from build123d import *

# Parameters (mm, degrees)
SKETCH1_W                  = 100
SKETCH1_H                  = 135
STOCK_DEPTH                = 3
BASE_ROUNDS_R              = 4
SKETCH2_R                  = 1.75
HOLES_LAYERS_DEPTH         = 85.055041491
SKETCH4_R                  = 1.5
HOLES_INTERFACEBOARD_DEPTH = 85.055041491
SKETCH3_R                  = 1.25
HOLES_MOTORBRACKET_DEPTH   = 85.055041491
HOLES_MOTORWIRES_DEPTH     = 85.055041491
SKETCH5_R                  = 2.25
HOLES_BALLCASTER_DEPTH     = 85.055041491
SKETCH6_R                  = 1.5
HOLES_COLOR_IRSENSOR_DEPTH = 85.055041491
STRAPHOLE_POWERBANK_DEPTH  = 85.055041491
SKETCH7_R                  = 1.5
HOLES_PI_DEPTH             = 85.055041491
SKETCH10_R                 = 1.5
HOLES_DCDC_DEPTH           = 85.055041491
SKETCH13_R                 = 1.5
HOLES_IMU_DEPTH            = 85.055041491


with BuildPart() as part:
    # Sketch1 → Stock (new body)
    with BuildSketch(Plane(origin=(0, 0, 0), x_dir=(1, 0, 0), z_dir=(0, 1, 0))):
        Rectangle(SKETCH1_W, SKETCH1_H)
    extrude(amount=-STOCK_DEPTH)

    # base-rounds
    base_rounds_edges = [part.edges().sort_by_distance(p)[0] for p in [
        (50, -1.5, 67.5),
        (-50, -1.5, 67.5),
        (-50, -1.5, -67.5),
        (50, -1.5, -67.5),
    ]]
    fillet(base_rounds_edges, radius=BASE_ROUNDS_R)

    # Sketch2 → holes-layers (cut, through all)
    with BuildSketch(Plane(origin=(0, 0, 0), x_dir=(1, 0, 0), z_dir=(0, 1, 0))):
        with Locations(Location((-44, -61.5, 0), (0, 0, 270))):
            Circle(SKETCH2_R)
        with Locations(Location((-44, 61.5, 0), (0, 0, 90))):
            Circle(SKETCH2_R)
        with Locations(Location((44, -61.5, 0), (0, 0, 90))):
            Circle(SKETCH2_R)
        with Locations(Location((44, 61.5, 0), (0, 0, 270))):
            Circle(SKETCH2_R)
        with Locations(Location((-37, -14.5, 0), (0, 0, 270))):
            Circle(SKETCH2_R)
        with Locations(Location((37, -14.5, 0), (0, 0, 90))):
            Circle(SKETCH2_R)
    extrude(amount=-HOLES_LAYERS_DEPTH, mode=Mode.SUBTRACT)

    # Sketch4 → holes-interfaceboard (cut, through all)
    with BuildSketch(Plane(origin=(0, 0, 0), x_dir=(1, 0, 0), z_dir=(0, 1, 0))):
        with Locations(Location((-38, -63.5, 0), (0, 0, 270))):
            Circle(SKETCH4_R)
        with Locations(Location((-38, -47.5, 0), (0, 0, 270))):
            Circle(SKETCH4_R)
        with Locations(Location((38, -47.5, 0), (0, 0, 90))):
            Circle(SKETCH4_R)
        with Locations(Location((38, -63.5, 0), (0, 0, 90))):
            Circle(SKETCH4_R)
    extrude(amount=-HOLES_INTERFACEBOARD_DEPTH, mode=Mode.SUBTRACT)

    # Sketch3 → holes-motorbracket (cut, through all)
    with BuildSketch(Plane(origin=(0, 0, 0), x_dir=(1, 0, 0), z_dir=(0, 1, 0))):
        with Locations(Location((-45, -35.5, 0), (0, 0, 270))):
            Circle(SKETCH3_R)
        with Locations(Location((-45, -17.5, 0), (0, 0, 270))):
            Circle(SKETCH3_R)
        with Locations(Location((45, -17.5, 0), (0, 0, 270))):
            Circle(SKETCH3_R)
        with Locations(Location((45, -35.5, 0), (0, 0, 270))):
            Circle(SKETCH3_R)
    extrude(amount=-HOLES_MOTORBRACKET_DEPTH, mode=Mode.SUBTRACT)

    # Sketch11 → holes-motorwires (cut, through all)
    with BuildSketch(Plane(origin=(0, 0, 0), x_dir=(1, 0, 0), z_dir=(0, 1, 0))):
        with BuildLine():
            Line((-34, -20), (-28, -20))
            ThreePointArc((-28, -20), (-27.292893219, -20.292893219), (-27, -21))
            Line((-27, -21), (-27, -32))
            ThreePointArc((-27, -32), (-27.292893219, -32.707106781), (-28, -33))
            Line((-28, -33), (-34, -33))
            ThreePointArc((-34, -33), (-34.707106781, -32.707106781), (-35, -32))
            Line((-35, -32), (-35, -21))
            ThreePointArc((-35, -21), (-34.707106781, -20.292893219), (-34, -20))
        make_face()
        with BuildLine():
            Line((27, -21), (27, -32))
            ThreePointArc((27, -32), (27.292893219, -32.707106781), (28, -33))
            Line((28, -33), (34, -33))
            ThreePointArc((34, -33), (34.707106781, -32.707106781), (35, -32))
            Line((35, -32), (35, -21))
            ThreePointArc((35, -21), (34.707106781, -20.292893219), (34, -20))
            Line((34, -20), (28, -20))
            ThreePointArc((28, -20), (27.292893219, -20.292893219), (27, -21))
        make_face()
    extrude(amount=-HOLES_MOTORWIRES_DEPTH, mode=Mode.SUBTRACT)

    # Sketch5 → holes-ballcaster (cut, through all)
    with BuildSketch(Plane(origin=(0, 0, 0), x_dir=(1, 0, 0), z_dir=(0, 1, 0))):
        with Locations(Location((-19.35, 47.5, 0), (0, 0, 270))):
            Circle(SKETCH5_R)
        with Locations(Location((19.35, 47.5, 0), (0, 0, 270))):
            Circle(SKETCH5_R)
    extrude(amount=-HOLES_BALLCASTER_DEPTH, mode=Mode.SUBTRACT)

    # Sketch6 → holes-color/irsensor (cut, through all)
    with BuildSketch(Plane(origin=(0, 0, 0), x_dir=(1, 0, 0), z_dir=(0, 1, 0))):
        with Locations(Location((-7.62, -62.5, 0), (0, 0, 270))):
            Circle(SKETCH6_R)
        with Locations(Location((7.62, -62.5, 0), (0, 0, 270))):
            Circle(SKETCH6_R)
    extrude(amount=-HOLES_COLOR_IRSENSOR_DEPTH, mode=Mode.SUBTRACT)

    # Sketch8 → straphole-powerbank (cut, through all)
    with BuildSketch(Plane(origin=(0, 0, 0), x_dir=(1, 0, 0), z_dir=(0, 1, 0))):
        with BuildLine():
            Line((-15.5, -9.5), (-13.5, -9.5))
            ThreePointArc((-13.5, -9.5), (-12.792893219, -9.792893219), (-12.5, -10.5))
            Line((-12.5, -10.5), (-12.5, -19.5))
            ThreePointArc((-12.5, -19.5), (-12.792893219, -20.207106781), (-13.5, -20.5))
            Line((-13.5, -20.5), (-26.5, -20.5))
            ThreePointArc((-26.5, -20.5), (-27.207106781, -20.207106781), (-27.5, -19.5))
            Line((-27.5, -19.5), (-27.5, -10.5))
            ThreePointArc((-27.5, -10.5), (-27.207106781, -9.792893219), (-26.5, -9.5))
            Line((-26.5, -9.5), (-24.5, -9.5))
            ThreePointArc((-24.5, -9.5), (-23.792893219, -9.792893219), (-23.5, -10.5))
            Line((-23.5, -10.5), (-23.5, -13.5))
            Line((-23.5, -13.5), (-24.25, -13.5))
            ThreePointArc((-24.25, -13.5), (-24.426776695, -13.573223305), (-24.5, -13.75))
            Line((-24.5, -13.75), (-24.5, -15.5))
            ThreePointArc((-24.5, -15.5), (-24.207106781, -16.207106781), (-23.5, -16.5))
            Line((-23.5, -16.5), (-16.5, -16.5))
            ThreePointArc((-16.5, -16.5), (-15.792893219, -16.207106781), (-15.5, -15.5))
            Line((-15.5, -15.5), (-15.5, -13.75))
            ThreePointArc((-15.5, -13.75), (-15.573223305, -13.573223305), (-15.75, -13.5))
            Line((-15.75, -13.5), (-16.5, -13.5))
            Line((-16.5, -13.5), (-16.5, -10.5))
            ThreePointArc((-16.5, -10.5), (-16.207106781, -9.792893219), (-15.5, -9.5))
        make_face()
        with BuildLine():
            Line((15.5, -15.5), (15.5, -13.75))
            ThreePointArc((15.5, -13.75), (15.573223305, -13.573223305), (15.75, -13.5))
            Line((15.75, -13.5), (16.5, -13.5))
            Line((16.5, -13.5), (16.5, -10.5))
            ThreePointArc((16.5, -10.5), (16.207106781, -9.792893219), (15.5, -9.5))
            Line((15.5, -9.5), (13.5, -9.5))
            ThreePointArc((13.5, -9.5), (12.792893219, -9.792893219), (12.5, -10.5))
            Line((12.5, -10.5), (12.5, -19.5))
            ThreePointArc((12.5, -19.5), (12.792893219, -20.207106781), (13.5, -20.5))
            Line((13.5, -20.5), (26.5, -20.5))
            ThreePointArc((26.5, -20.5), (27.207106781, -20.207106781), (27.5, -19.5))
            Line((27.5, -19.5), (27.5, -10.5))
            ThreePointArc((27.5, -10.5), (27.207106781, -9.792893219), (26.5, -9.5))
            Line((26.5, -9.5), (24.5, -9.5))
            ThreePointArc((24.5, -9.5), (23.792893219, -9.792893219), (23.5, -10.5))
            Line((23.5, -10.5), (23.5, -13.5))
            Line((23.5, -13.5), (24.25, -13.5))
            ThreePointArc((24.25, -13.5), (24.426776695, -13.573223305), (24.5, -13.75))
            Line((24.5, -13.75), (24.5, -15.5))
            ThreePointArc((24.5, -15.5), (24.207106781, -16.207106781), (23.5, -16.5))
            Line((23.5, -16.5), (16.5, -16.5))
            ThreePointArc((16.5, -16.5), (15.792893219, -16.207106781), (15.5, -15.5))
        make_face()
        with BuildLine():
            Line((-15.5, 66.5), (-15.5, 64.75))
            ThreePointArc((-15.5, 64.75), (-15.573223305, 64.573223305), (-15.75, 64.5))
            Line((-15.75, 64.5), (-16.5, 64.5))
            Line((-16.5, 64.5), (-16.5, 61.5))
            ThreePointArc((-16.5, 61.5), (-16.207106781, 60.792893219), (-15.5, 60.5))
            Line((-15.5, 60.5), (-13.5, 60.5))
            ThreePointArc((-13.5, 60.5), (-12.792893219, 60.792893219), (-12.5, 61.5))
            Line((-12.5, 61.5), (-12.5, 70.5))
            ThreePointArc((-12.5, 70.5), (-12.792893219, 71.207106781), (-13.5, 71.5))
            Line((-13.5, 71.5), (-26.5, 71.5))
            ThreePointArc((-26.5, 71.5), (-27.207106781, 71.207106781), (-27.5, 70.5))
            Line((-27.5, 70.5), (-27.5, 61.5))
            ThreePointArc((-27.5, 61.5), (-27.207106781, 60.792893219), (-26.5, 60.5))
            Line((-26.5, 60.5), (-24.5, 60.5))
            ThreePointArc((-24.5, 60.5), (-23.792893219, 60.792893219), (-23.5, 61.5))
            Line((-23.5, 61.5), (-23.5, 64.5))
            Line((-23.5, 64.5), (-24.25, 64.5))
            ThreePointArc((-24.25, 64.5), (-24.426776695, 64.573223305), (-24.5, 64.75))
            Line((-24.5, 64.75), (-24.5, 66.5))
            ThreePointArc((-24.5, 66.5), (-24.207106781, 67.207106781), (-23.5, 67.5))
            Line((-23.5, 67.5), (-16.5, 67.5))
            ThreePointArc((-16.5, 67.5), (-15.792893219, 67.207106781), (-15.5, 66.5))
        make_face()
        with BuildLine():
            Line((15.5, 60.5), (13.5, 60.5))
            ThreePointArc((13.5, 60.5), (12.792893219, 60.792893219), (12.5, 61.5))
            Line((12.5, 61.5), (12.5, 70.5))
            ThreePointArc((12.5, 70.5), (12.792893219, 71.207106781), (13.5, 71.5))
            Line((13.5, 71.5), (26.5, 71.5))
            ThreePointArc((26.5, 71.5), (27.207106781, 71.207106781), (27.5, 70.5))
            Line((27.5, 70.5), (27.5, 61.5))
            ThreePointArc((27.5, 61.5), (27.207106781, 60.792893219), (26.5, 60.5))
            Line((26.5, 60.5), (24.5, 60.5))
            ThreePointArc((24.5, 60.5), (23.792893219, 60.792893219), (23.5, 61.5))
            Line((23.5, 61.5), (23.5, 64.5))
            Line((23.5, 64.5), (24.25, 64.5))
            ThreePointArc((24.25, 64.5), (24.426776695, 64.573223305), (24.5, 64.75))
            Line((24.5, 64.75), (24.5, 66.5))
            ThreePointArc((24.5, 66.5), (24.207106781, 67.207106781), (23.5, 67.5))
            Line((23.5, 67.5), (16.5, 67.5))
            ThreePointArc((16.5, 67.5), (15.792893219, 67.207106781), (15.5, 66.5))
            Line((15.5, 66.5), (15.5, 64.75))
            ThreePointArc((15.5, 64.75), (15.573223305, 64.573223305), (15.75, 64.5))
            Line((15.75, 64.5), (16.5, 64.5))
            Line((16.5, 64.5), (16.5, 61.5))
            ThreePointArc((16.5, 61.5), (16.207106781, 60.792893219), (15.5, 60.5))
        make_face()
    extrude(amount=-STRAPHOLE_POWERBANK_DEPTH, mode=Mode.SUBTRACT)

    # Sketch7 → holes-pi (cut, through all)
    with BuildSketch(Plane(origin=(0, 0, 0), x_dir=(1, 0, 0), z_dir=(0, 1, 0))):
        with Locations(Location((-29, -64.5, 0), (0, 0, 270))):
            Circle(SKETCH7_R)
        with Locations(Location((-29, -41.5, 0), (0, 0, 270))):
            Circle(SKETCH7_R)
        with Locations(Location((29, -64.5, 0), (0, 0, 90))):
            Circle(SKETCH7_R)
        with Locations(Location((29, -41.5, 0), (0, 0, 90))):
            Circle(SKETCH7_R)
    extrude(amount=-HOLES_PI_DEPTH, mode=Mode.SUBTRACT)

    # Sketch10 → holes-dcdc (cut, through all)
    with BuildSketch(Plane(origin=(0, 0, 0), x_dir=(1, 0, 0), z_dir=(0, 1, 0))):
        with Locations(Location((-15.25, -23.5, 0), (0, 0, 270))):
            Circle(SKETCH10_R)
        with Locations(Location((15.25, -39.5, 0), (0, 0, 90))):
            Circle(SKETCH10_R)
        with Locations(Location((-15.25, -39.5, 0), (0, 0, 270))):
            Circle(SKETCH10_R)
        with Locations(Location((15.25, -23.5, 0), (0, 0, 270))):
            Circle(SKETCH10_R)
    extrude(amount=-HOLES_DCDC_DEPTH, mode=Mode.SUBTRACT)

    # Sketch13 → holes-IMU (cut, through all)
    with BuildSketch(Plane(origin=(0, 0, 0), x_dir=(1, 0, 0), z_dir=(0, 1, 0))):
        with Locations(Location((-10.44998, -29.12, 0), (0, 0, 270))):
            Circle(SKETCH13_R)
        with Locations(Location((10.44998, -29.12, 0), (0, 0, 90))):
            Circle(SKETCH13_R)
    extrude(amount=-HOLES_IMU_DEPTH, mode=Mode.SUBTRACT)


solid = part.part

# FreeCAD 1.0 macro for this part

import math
import FreeCAD as App
import Part
import Sketcher

V = App.Vector


def edges_at(feature, points):
    """Names of the edges that pass closest to the given points."""
    edges = feature.Shape.Edges
    near = lambda p: min(range(len(edges)), key=lambda i: edges[i].distToShape(Part.Vertex(*p))[0])
    return sorted({f"Edge{near(p) + 1}" for p in points})

doc = App.newDocument("Part")
body = doc.addObject("PartDesign::Body", "Body")

# Sketch on XZ plane
sketch1 = body.newObject("Sketcher::SketchObject", "Sketch")
sketch1.AttachmentSupport = (doc.getObject("XZ_Plane"), [""])
sketch1.MapMode = "FlatFace"
sketch1.addGeometry(Part.LineSegment(V(-50, -68, 0), V(-50, 68, 0)), False)
sketch1.addGeometry(Part.LineSegment(V(-50, 68, 0), V(50, 68, 0)), False)
sketch1.addGeometry(Part.LineSegment(V(50, 68, 0), V(50, -68, 0)), False)
sketch1.addGeometry(Part.LineSegment(V(50, -68, 0), V(-50, -68, 0)), False)
sketch1.addConstraint(Sketcher.Constraint("Coincident", 0, 2, 1, 1))
sketch1.addConstraint(Sketcher.Constraint("Coincident", 1, 2, 2, 1))
sketch1.addConstraint(Sketcher.Constraint("Coincident", 2, 2, 3, 1))
sketch1.addConstraint(Sketcher.Constraint("Coincident", 3, 2, 0, 1))
sketch1.addConstraint(Sketcher.Constraint("Vertical", 0))
sketch1.addConstraint(Sketcher.Constraint("Horizontal", 1))
sketch1.addConstraint(Sketcher.Constraint("Vertical", 2))
sketch1.addConstraint(Sketcher.Constraint("Horizontal", 3))
sketch1.addConstraint(Sketcher.Constraint("Symmetric", 0, 2, 2, 2, -1, 1))
sketch1.addConstraint(Sketcher.Constraint("DistanceX", 1, 1, 1, 2, 100.0))
sketch1.addConstraint(Sketcher.Constraint("DistanceY", 0, 1, 0, 2, 135.0))
pad1 = body.newObject("PartDesign::Pad", "Pad")
pad1.Profile = sketch1
pad1.Length = 3
doc.recompute()

fillet = body.newObject("PartDesign::Fillet", "Fillet")
fillet.Base = (pad1, edges_at(pad1, [
    (50, -1.5, 67.5),
    (-50, -1.5, 67.5),
    (-50, -1.5, -67.5),
    (50, -1.5, -67.5),
]))
fillet.Radius = 4

# Sketch on XZ plane
sketch2 = body.newObject("Sketcher::SketchObject", "Sketch001")
sketch2.AttachmentSupport = (doc.getObject("XZ_Plane"), [""])
sketch2.MapMode = "FlatFace"
sketch2.addGeometry(Part.Circle(V(-44, 61.5, 0), V(0, 0, 1), 1.8), False)
sketch2.addGeometry(Part.Circle(V(-44, -61.5, 0), V(0, 0, 1), 1.8), False)
sketch2.addGeometry(Part.Circle(V(44, 61.5, 0), V(0, 0, 1), 1.8), False)
sketch2.addGeometry(Part.Circle(V(44, -61.5, 0), V(0, 0, 1), 1.8), False)
sketch2.addGeometry(Part.Circle(V(-37, 14.5, 0), V(0, 0, 1), 1.8), False)
sketch2.addGeometry(Part.Circle(V(37, 14.5, 0), V(0, 0, 1), 1.8), False)
sketch2.addConstraint(Sketcher.Constraint("Equal", 0, 1))
sketch2.addConstraint(Sketcher.Constraint("Equal", 1, 2))
sketch2.addConstraint(Sketcher.Constraint("Equal", 2, 3))
sketch2.addConstraint(Sketcher.Constraint("Equal", 3, 4))
sketch2.addConstraint(Sketcher.Constraint("Equal", 4, 5))
sketch2.addConstraint(Sketcher.Constraint("Symmetric", 1, 3, 2, 3, -1, 1))
sketch2.addConstraint(Sketcher.Constraint("Symmetric", 0, 3, 3, 3, -1, 1))
sketch2.addConstraint(Sketcher.Constraint("Symmetric", 0, 3, 2, 3, -2))
sketch2.addConstraint(Sketcher.Constraint("Symmetric", 4, 3, 5, 3, -2))
sketch2.addConstraint(Sketcher.Constraint("Diameter", 0, 3.5))
sketch2.addConstraint(Sketcher.Constraint("DistanceX", 0, 3, -1, 1, 44.0))
sketch2.addConstraint(Sketcher.Constraint("DistanceX", 4, 3, -1, 1, 37.0))
sketch2.addConstraint(Sketcher.Constraint("DistanceY", 1, 3, 0, 3, 123.0))
sketch2.addConstraint(Sketcher.Constraint("DistanceY", 4, 3, 0, 3, 47.0))
pocket1 = body.newObject("PartDesign::Pocket", "Pocket")
pocket1.Profile = sketch2
pocket1.Type = "ThroughAll"
pocket1.Reversed = True

# Sketch on XZ plane
sketch3 = body.newObject("Sketcher::SketchObject", "Sketch002")
sketch3.AttachmentSupport = (doc.getObject("XZ_Plane"), [""])
sketch3.MapMode = "FlatFace"
sketch3.addGeometry(Part.Circle(V(-38, 63.5, 0), V(0, 0, 1), 1.5), False)
sketch3.addGeometry(Part.Circle(V(-38, 47.5, 0), V(0, 0, 1), 1.5), False)
sketch3.addGeometry(Part.Circle(V(38, 47.5, 0), V(0, 0, 1), 1.5), False)
sketch3.addGeometry(Part.Circle(V(38, 63.5, 0), V(0, 0, 1), 1.5), False)
sketch3.addConstraint(Sketcher.Constraint("Equal", 0, 1))
sketch3.addConstraint(Sketcher.Constraint("Equal", 1, 2))
sketch3.addConstraint(Sketcher.Constraint("Equal", 2, 3))
sketch3.addConstraint(Sketcher.Constraint("Symmetric", 1, 3, 2, 3, -2))
sketch3.addConstraint(Sketcher.Constraint("Symmetric", 0, 3, 3, 3, -2))
sketch3.addConstraint(Sketcher.Constraint("Vertical", 0, 3, 1, 3))
sketch3.addConstraint(Sketcher.Constraint("Diameter", 0, 3.0))
sketch3.addConstraint(Sketcher.Constraint("DistanceX", 0, 3, -1, 1, 38.0))
sketch3.addConstraint(Sketcher.Constraint("DistanceY", 1, 3, 0, 3, 16.0))
sketch3.addConstraint(Sketcher.Constraint("DistanceY", -1, 1, 0, 3, 63.5))
pocket2 = body.newObject("PartDesign::Pocket", "Pocket001")
pocket2.Profile = sketch3
pocket2.Type = "ThroughAll"
pocket2.Reversed = True

# Sketch on XZ plane
sketch4 = body.newObject("Sketcher::SketchObject", "Sketch003")
sketch4.AttachmentSupport = (doc.getObject("XZ_Plane"), [""])
sketch4.MapMode = "FlatFace"
sketch4.addGeometry(Part.Circle(V(-45, 35.5, 0), V(0, 0, 1), 1.2), False)
sketch4.addGeometry(Part.Circle(V(-45, 17.5, 0), V(0, 0, 1), 1.2), False)
sketch4.addGeometry(Part.Circle(V(45, 17.5, 0), V(0, 0, 1), 1.2), False)
sketch4.addGeometry(Part.Circle(V(45, 35.5, 0), V(0, 0, 1), 1.2), False)
sketch4.addConstraint(Sketcher.Constraint("Equal", 0, 1))
sketch4.addConstraint(Sketcher.Constraint("Equal", 1, 2))
sketch4.addConstraint(Sketcher.Constraint("Equal", 2, 3))
sketch4.addConstraint(Sketcher.Constraint("Symmetric", 1, 3, 2, 3, -2))
sketch4.addConstraint(Sketcher.Constraint("Symmetric", 0, 3, 3, 3, -2))
sketch4.addConstraint(Sketcher.Constraint("Vertical", 0, 3, 1, 3))
sketch4.addConstraint(Sketcher.Constraint("Diameter", 0, 2.5))
sketch4.addConstraint(Sketcher.Constraint("DistanceX", 0, 3, -1, 1, 45.0))
sketch4.addConstraint(Sketcher.Constraint("DistanceY", 1, 3, 0, 3, 18.0))
sketch4.addConstraint(Sketcher.Constraint("DistanceY", -1, 1, 0, 3, 35.5))
pocket3 = body.newObject("PartDesign::Pocket", "Pocket002")
pocket3.Profile = sketch4
pocket3.Type = "ThroughAll"
pocket3.Reversed = True

# Sketch on XZ plane
sketch5 = body.newObject("Sketcher::SketchObject", "Sketch004")
sketch5.AttachmentSupport = (doc.getObject("XZ_Plane"), [""])
sketch5.MapMode = "FlatFace"
sketch5.addGeometry(Part.LineSegment(V(-28, 20, 0), V(-34, 20, 0)), False)
sketch5.addGeometry(Part.ArcOfCircle(Part.Circle(V(-34, 21, 0), V(0, 0, 1), 1), math.radians(-180), math.radians(-90)), False)
sketch5.addGeometry(Part.LineSegment(V(-35, 21, 0), V(-35, 32, 0)), False)
sketch5.addGeometry(Part.ArcOfCircle(Part.Circle(V(-34, 32, 0), V(0, 0, 1), 1), math.radians(90), math.radians(180)), False)
sketch5.addGeometry(Part.LineSegment(V(-34, 33, 0), V(-28, 33, 0)), False)
sketch5.addGeometry(Part.ArcOfCircle(Part.Circle(V(-28, 32, 0), V(0, 0, 1), 1), math.radians(0), math.radians(90)), False)
sketch5.addGeometry(Part.LineSegment(V(-27, 32, 0), V(-27, 21, 0)), False)
sketch5.addGeometry(Part.ArcOfCircle(Part.Circle(V(-28, 21, 0), V(0, 0, 1), 1), math.radians(-90), math.radians(0)), False)
sketch5.addGeometry(Part.LineSegment(V(27, 21, 0), V(27, 32, 0)), False)
sketch5.addGeometry(Part.ArcOfCircle(Part.Circle(V(28, 32, 0), V(0, 0, 1), 1), math.radians(90), math.radians(180)), False)
sketch5.addGeometry(Part.LineSegment(V(28, 33, 0), V(34, 33, 0)), False)
sketch5.addGeometry(Part.ArcOfCircle(Part.Circle(V(34, 32, 0), V(0, 0, 1), 1), math.radians(0), math.radians(90)), False)
sketch5.addGeometry(Part.LineSegment(V(35, 32, 0), V(35, 21, 0)), False)
sketch5.addGeometry(Part.ArcOfCircle(Part.Circle(V(34, 21, 0), V(0, 0, 1), 1), math.radians(-90), math.radians(0)), False)
sketch5.addGeometry(Part.LineSegment(V(34, 20, 0), V(28, 20, 0)), False)
sketch5.addGeometry(Part.ArcOfCircle(Part.Circle(V(28, 21, 0), V(0, 0, 1), 1), math.radians(-180), math.radians(-90)), False)
sketch5.addConstraint(Sketcher.Constraint("Tangent", 0, 2, 1, 2))
sketch5.addConstraint(Sketcher.Constraint("Tangent", 1, 1, 2, 1))
sketch5.addConstraint(Sketcher.Constraint("Tangent", 2, 2, 3, 2))
sketch5.addConstraint(Sketcher.Constraint("Tangent", 3, 1, 4, 1))
sketch5.addConstraint(Sketcher.Constraint("Tangent", 4, 2, 5, 2))
sketch5.addConstraint(Sketcher.Constraint("Tangent", 5, 1, 6, 1))
sketch5.addConstraint(Sketcher.Constraint("Tangent", 6, 2, 7, 2))
sketch5.addConstraint(Sketcher.Constraint("Tangent", 7, 1, 0, 1))
sketch5.addConstraint(Sketcher.Constraint("Tangent", 8, 2, 9, 2))
sketch5.addConstraint(Sketcher.Constraint("Tangent", 9, 1, 10, 1))
sketch5.addConstraint(Sketcher.Constraint("Tangent", 10, 2, 11, 2))
sketch5.addConstraint(Sketcher.Constraint("Tangent", 11, 1, 12, 1))
sketch5.addConstraint(Sketcher.Constraint("Tangent", 12, 2, 13, 2))
sketch5.addConstraint(Sketcher.Constraint("Tangent", 13, 1, 14, 1))
sketch5.addConstraint(Sketcher.Constraint("Tangent", 14, 2, 15, 2))
sketch5.addConstraint(Sketcher.Constraint("Tangent", 15, 1, 8, 1))
sketch5.addConstraint(Sketcher.Constraint("Horizontal", 0))
sketch5.addConstraint(Sketcher.Constraint("Vertical", 2))
sketch5.addConstraint(Sketcher.Constraint("Horizontal", 4))
sketch5.addConstraint(Sketcher.Constraint("Vertical", 6))
sketch5.addConstraint(Sketcher.Constraint("Vertical", 8))
sketch5.addConstraint(Sketcher.Constraint("Horizontal", 10))
sketch5.addConstraint(Sketcher.Constraint("Vertical", 12))
sketch5.addConstraint(Sketcher.Constraint("Horizontal", 14))
sketch5.addConstraint(Sketcher.Constraint("Equal", 1, 3))
sketch5.addConstraint(Sketcher.Constraint("Equal", 3, 5))
sketch5.addConstraint(Sketcher.Constraint("Equal", 5, 7))
sketch5.addConstraint(Sketcher.Constraint("Equal", 7, 9))
sketch5.addConstraint(Sketcher.Constraint("Equal", 9, 11))
sketch5.addConstraint(Sketcher.Constraint("Equal", 11, 13))
sketch5.addConstraint(Sketcher.Constraint("Equal", 13, 15))
sketch5.addConstraint(Sketcher.Constraint("Symmetric", 5, 3, 9, 3, -2))
sketch5.addConstraint(Sketcher.Constraint("Symmetric", 1, 3, 13, 3, -2))
sketch5.addConstraint(Sketcher.Constraint("Radius", 1, 1.0))
sketch5.addConstraint(Sketcher.Constraint("DistanceX", 0, 2, 0, 1, 6.0))
sketch5.addConstraint(Sketcher.Constraint("DistanceY", 2, 1, 2, 2, 11.0))
sketch5.addConstraint(Sketcher.Constraint("DistanceX", 1, 3, -1, 1, 34.0))
sketch5.addConstraint(Sketcher.Constraint("DistanceY", -1, 1, 1, 3, 21.0))
pocket4 = body.newObject("PartDesign::Pocket", "Pocket003")
pocket4.Profile = sketch5
pocket4.Type = "ThroughAll"
pocket4.Reversed = True

# Sketch on XZ plane
sketch6 = body.newObject("Sketcher::SketchObject", "Sketch005")
sketch6.AttachmentSupport = (doc.getObject("XZ_Plane"), [""])
sketch6.MapMode = "FlatFace"
sketch6.addGeometry(Part.Circle(V(-19.4, -47.5, 0), V(0, 0, 1), 2.2), False)
sketch6.addGeometry(Part.Circle(V(19.4, -47.5, 0), V(0, 0, 1), 2.2), False)
sketch6.addConstraint(Sketcher.Constraint("Equal", 0, 1))
sketch6.addConstraint(Sketcher.Constraint("Symmetric", 0, 3, 1, 3, -2))
sketch6.addConstraint(Sketcher.Constraint("Diameter", 0, 4.5))
sketch6.addConstraint(Sketcher.Constraint("DistanceY", 0, 3, -1, 1, 47.5))
sketch6.addConstraint(Sketcher.Constraint("DistanceX", 0, 3, 1, 3, 38.7))
pocket5 = body.newObject("PartDesign::Pocket", "Pocket004")
pocket5.Profile = sketch6
pocket5.Type = "ThroughAll"
pocket5.Reversed = True

# Sketch on XZ plane
sketch7 = body.newObject("Sketcher::SketchObject", "Sketch006")
sketch7.AttachmentSupport = (doc.getObject("XZ_Plane"), [""])
sketch7.MapMode = "FlatFace"
sketch7.addGeometry(Part.Circle(V(-7.6, 62.5, 0), V(0, 0, 1), 1.5), False)
sketch7.addGeometry(Part.Circle(V(7.6, 62.5, 0), V(0, 0, 1), 1.5), False)
sketch7.addConstraint(Sketcher.Constraint("Equal", 0, 1))
sketch7.addConstraint(Sketcher.Constraint("Symmetric", 0, 3, 1, 3, -2))
sketch7.addConstraint(Sketcher.Constraint("Diameter", 0, 3.0))
sketch7.addConstraint(Sketcher.Constraint("DistanceY", -1, 1, 0, 3, 62.5))
sketch7.addConstraint(Sketcher.Constraint("DistanceX", 0, 3, -1, 1, 7.62))
pocket6 = body.newObject("PartDesign::Pocket", "Pocket005")
pocket6.Profile = sketch7
pocket6.Type = "ThroughAll"
pocket6.Reversed = True

# Sketch on XZ plane
sketch8 = body.newObject("Sketcher::SketchObject", "Sketch007")
sketch8.AttachmentSupport = (doc.getObject("XZ_Plane"), [""])
sketch8.MapMode = "FlatFace"
sketch8.addGeometry(Part.LineSegment(V(-13.5, 9.5, 0), V(-15.5, 9.5, 0)), False)
sketch8.addGeometry(Part.ArcOfCircle(Part.Circle(V(-15.5, 10.5, 0), V(0, 0, 1), 1), math.radians(-180), math.radians(-90)), False)
sketch8.addGeometry(Part.LineSegment(V(-16.5, 10.5, 0), V(-16.5, 13.5, 0)), False)
sketch8.addGeometry(Part.LineSegment(V(-16.5, 13.5, 0), V(-15.75, 13.5, 0)), False)
sketch8.addGeometry(Part.ArcOfCircle(Part.Circle(V(-15.75, 13.75, 0), V(0, 0, 1), 0.25), math.radians(-90), math.radians(0)), False)
sketch8.addGeometry(Part.LineSegment(V(-15.5, 13.75, 0), V(-15.5, 15.5, 0)), False)
sketch8.addGeometry(Part.ArcOfCircle(Part.Circle(V(-16.5, 15.5, 0), V(0, 0, 1), 1), math.radians(0), math.radians(90)), False)
sketch8.addGeometry(Part.LineSegment(V(-16.5, 16.5, 0), V(-23.5, 16.5, 0)), False)
sketch8.addGeometry(Part.ArcOfCircle(Part.Circle(V(-23.5, 15.5, 0), V(0, 0, 1), 1), math.radians(90), math.radians(180)), False)
sketch8.addGeometry(Part.LineSegment(V(-24.5, 15.5, 0), V(-24.5, 13.75, 0)), False)
sketch8.addGeometry(Part.ArcOfCircle(Part.Circle(V(-24.25, 13.75, 0), V(0, 0, 1), 0.25), math.radians(-180), math.radians(-90)), False)
sketch8.addGeometry(Part.LineSegment(V(-24.25, 13.5, 0), V(-23.5, 13.5, 0)), False)
sketch8.addGeometry(Part.LineSegment(V(-23.5, 13.5, 0), V(-23.5, 10.5, 0)), False)
sketch8.addGeometry(Part.ArcOfCircle(Part.Circle(V(-24.5, 10.5, 0), V(0, 0, 1), 1), math.radians(-90), math.radians(0)), False)
sketch8.addGeometry(Part.LineSegment(V(-24.5, 9.5, 0), V(-26.5, 9.5, 0)), False)
sketch8.addGeometry(Part.ArcOfCircle(Part.Circle(V(-26.5, 10.5, 0), V(0, 0, 1), 1), math.radians(-180), math.radians(-90)), False)
sketch8.addGeometry(Part.LineSegment(V(-27.5, 10.5, 0), V(-27.5, 19.5, 0)), False)
sketch8.addGeometry(Part.ArcOfCircle(Part.Circle(V(-26.5, 19.5, 0), V(0, 0, 1), 1), math.radians(90), math.radians(180)), False)
sketch8.addGeometry(Part.LineSegment(V(-26.5, 20.5, 0), V(-13.5, 20.5, 0)), False)
sketch8.addGeometry(Part.ArcOfCircle(Part.Circle(V(-13.5, 19.5, 0), V(0, 0, 1), 1), math.radians(0), math.radians(90)), False)
sketch8.addGeometry(Part.LineSegment(V(-12.5, 19.5, 0), V(-12.5, 10.5, 0)), False)
sketch8.addGeometry(Part.ArcOfCircle(Part.Circle(V(-13.5, 10.5, 0), V(0, 0, 1), 1), math.radians(-90), math.radians(0)), False)
sketch8.addGeometry(Part.LineSegment(V(15.5, 15.5, 0), V(15.5, 13.75, 0)), False)
sketch8.addGeometry(Part.ArcOfCircle(Part.Circle(V(15.75, 13.75, 0), V(0, 0, 1), 0.25), math.radians(-180), math.radians(-90)), False)
sketch8.addGeometry(Part.LineSegment(V(15.75, 13.5, 0), V(16.5, 13.5, 0)), False)
sketch8.addGeometry(Part.LineSegment(V(16.5, 13.5, 0), V(16.5, 10.5, 0)), False)
sketch8.addGeometry(Part.ArcOfCircle(Part.Circle(V(15.5, 10.5, 0), V(0, 0, 1), 1), math.radians(-90), math.radians(0)), False)
sketch8.addGeometry(Part.LineSegment(V(15.5, 9.5, 0), V(13.5, 9.5, 0)), False)
sketch8.addGeometry(Part.ArcOfCircle(Part.Circle(V(13.5, 10.5, 0), V(0, 0, 1), 1), math.radians(-180), math.radians(-90)), False)
sketch8.addGeometry(Part.LineSegment(V(12.5, 10.5, 0), V(12.5, 19.5, 0)), False)
sketch8.addGeometry(Part.ArcOfCircle(Part.Circle(V(13.5, 19.5, 0), V(0, 0, 1), 1), math.radians(90), math.radians(180)), False)
sketch8.addGeometry(Part.LineSegment(V(13.5, 20.5, 0), V(26.5, 20.5, 0)), False)
sketch8.addGeometry(Part.ArcOfCircle(Part.Circle(V(26.5, 19.5, 0), V(0, 0, 1), 1), math.radians(0), math.radians(90)), False)
sketch8.addGeometry(Part.LineSegment(V(27.5, 19.5, 0), V(27.5, 10.5, 0)), False)
sketch8.addGeometry(Part.ArcOfCircle(Part.Circle(V(26.5, 10.5, 0), V(0, 0, 1), 1), math.radians(-90), math.radians(0)), False)
sketch8.addGeometry(Part.LineSegment(V(26.5, 9.5, 0), V(24.5, 9.5, 0)), False)
sketch8.addGeometry(Part.ArcOfCircle(Part.Circle(V(24.5, 10.5, 0), V(0, 0, 1), 1), math.radians(-180), math.radians(-90)), False)
sketch8.addGeometry(Part.LineSegment(V(23.5, 10.5, 0), V(23.5, 13.5, 0)), False)
sketch8.addGeometry(Part.LineSegment(V(23.5, 13.5, 0), V(24.25, 13.5, 0)), False)
sketch8.addGeometry(Part.ArcOfCircle(Part.Circle(V(24.25, 13.75, 0), V(0, 0, 1), 0.25), math.radians(-90), math.radians(0)), False)
sketch8.addGeometry(Part.LineSegment(V(24.5, 13.75, 0), V(24.5, 15.5, 0)), False)
sketch8.addGeometry(Part.ArcOfCircle(Part.Circle(V(23.5, 15.5, 0), V(0, 0, 1), 1), math.radians(0), math.radians(90)), False)
sketch8.addGeometry(Part.LineSegment(V(23.5, 16.5, 0), V(16.5, 16.5, 0)), False)
sketch8.addGeometry(Part.ArcOfCircle(Part.Circle(V(16.5, 15.5, 0), V(0, 0, 1), 1), math.radians(90), math.radians(180)), False)
sketch8.addGeometry(Part.LineSegment(V(-15.5, -66.5, 0), V(-15.5, -64.75, 0)), False)
sketch8.addGeometry(Part.ArcOfCircle(Part.Circle(V(-15.75, -64.75, 0), V(0, 0, 1), 0.25), math.radians(0), math.radians(90)), False)
sketch8.addGeometry(Part.LineSegment(V(-15.75, -64.5, 0), V(-16.5, -64.5, 0)), False)
sketch8.addGeometry(Part.LineSegment(V(-16.5, -64.5, 0), V(-16.5, -61.5, 0)), False)
sketch8.addGeometry(Part.ArcOfCircle(Part.Circle(V(-15.5, -61.5, 0), V(0, 0, 1), 1), math.radians(90), math.radians(180)), False)
sketch8.addGeometry(Part.LineSegment(V(-15.5, -60.5, 0), V(-13.5, -60.5, 0)), False)
sketch8.addGeometry(Part.ArcOfCircle(Part.Circle(V(-13.5, -61.5, 0), V(0, 0, 1), 1), math.radians(0), math.radians(90)), False)
sketch8.addGeometry(Part.LineSegment(V(-12.5, -61.5, 0), V(-12.5, -70.5, 0)), False)
sketch8.addGeometry(Part.ArcOfCircle(Part.Circle(V(-13.5, -70.5, 0), V(0, 0, 1), 1), math.radians(-90), math.radians(0)), False)
sketch8.addGeometry(Part.LineSegment(V(-13.5, -71.5, 0), V(-26.5, -71.5, 0)), False)
sketch8.addGeometry(Part.ArcOfCircle(Part.Circle(V(-26.5, -70.5, 0), V(0, 0, 1), 1), math.radians(-180), math.radians(-90)), False)
sketch8.addGeometry(Part.LineSegment(V(-27.5, -70.5, 0), V(-27.5, -61.5, 0)), False)
sketch8.addGeometry(Part.ArcOfCircle(Part.Circle(V(-26.5, -61.5, 0), V(0, 0, 1), 1), math.radians(90), math.radians(180)), False)
sketch8.addGeometry(Part.LineSegment(V(-26.5, -60.5, 0), V(-24.5, -60.5, 0)), False)
sketch8.addGeometry(Part.ArcOfCircle(Part.Circle(V(-24.5, -61.5, 0), V(0, 0, 1), 1), math.radians(0), math.radians(90)), False)
sketch8.addGeometry(Part.LineSegment(V(-23.5, -61.5, 0), V(-23.5, -64.5, 0)), False)
sketch8.addGeometry(Part.LineSegment(V(-23.5, -64.5, 0), V(-24.25, -64.5, 0)), False)
sketch8.addGeometry(Part.ArcOfCircle(Part.Circle(V(-24.25, -64.75, 0), V(0, 0, 1), 0.25), math.radians(90), math.radians(180)), False)
sketch8.addGeometry(Part.LineSegment(V(-24.5, -64.75, 0), V(-24.5, -66.5, 0)), False)
sketch8.addGeometry(Part.ArcOfCircle(Part.Circle(V(-23.5, -66.5, 0), V(0, 0, 1), 1), math.radians(-180), math.radians(-90)), False)
sketch8.addGeometry(Part.LineSegment(V(-23.5, -67.5, 0), V(-16.5, -67.5, 0)), False)
sketch8.addGeometry(Part.ArcOfCircle(Part.Circle(V(-16.5, -66.5, 0), V(0, 0, 1), 1), math.radians(-90), math.radians(0)), False)
sketch8.addGeometry(Part.LineSegment(V(13.5, -60.5, 0), V(15.5, -60.5, 0)), False)
sketch8.addGeometry(Part.ArcOfCircle(Part.Circle(V(15.5, -61.5, 0), V(0, 0, 1), 1), math.radians(0), math.radians(90)), False)
sketch8.addGeometry(Part.LineSegment(V(16.5, -61.5, 0), V(16.5, -64.5, 0)), False)
sketch8.addGeometry(Part.LineSegment(V(16.5, -64.5, 0), V(15.75, -64.5, 0)), False)
sketch8.addGeometry(Part.ArcOfCircle(Part.Circle(V(15.75, -64.75, 0), V(0, 0, 1), 0.25), math.radians(90), math.radians(180)), False)
sketch8.addGeometry(Part.LineSegment(V(15.5, -64.75, 0), V(15.5, -66.5, 0)), False)
sketch8.addGeometry(Part.ArcOfCircle(Part.Circle(V(16.5, -66.5, 0), V(0, 0, 1), 1), math.radians(-180), math.radians(-90)), False)
sketch8.addGeometry(Part.LineSegment(V(16.5, -67.5, 0), V(23.5, -67.5, 0)), False)
sketch8.addGeometry(Part.ArcOfCircle(Part.Circle(V(23.5, -66.5, 0), V(0, 0, 1), 1), math.radians(-90), math.radians(0)), False)
sketch8.addGeometry(Part.LineSegment(V(24.5, -66.5, 0), V(24.5, -64.75, 0)), False)
sketch8.addGeometry(Part.ArcOfCircle(Part.Circle(V(24.25, -64.75, 0), V(0, 0, 1), 0.25), math.radians(0), math.radians(90)), False)
sketch8.addGeometry(Part.LineSegment(V(24.25, -64.5, 0), V(23.5, -64.5, 0)), False)
sketch8.addGeometry(Part.LineSegment(V(23.5, -64.5, 0), V(23.5, -61.5, 0)), False)
sketch8.addGeometry(Part.ArcOfCircle(Part.Circle(V(24.5, -61.5, 0), V(0, 0, 1), 1), math.radians(90), math.radians(180)), False)
sketch8.addGeometry(Part.LineSegment(V(24.5, -60.5, 0), V(26.5, -60.5, 0)), False)
sketch8.addGeometry(Part.ArcOfCircle(Part.Circle(V(26.5, -61.5, 0), V(0, 0, 1), 1), math.radians(0), math.radians(90)), False)
sketch8.addGeometry(Part.LineSegment(V(27.5, -61.5, 0), V(27.5, -70.5, 0)), False)
sketch8.addGeometry(Part.ArcOfCircle(Part.Circle(V(26.5, -70.5, 0), V(0, 0, 1), 1), math.radians(-90), math.radians(0)), False)
sketch8.addGeometry(Part.LineSegment(V(26.5, -71.5, 0), V(13.5, -71.5, 0)), False)
sketch8.addGeometry(Part.ArcOfCircle(Part.Circle(V(13.5, -70.5, 0), V(0, 0, 1), 1), math.radians(-180), math.radians(-90)), False)
sketch8.addGeometry(Part.LineSegment(V(12.5, -70.5, 0), V(12.5, -61.5, 0)), False)
sketch8.addGeometry(Part.ArcOfCircle(Part.Circle(V(13.5, -61.5, 0), V(0, 0, 1), 1), math.radians(90), math.radians(180)), False)
sketch8.addConstraint(Sketcher.Constraint("Tangent", 0, 2, 1, 2))
sketch8.addConstraint(Sketcher.Constraint("Tangent", 1, 1, 2, 1))
sketch8.addConstraint(Sketcher.Constraint("Coincident", 2, 2, 3, 1))
sketch8.addConstraint(Sketcher.Constraint("Tangent", 3, 2, 4, 1))
sketch8.addConstraint(Sketcher.Constraint("Tangent", 4, 2, 5, 1))
sketch8.addConstraint(Sketcher.Constraint("Tangent", 5, 2, 6, 1))
sketch8.addConstraint(Sketcher.Constraint("Tangent", 6, 2, 7, 1))
sketch8.addConstraint(Sketcher.Constraint("Tangent", 7, 2, 8, 1))
sketch8.addConstraint(Sketcher.Constraint("Tangent", 8, 2, 9, 1))
sketch8.addConstraint(Sketcher.Constraint("Tangent", 9, 2, 10, 1))
sketch8.addConstraint(Sketcher.Constraint("Tangent", 10, 2, 11, 1))
sketch8.addConstraint(Sketcher.Constraint("Coincident", 11, 2, 12, 1))
sketch8.addConstraint(Sketcher.Constraint("Tangent", 12, 2, 13, 2))
sketch8.addConstraint(Sketcher.Constraint("Tangent", 13, 1, 14, 1))
sketch8.addConstraint(Sketcher.Constraint("Tangent", 14, 2, 15, 2))
sketch8.addConstraint(Sketcher.Constraint("Tangent", 15, 1, 16, 1))
sketch8.addConstraint(Sketcher.Constraint("Tangent", 16, 2, 17, 2))
sketch8.addConstraint(Sketcher.Constraint("Tangent", 17, 1, 18, 1))
sketch8.addConstraint(Sketcher.Constraint("Tangent", 18, 2, 19, 2))
sketch8.addConstraint(Sketcher.Constraint("Tangent", 19, 1, 20, 1))
sketch8.addConstraint(Sketcher.Constraint("Tangent", 20, 2, 21, 2))
sketch8.addConstraint(Sketcher.Constraint("Tangent", 21, 1, 0, 1))
sketch8.addConstraint(Sketcher.Constraint("Tangent", 22, 2, 23, 1))
sketch8.addConstraint(Sketcher.Constraint("Tangent", 23, 2, 24, 1))
sketch8.addConstraint(Sketcher.Constraint("Coincident", 24, 2, 25, 1))
sketch8.addConstraint(Sketcher.Constraint("Tangent", 25, 2, 26, 2))
sketch8.addConstraint(Sketcher.Constraint("Tangent", 26, 1, 27, 1))
sketch8.addConstraint(Sketcher.Constraint("Tangent", 27, 2, 28, 2))
sketch8.addConstraint(Sketcher.Constraint("Tangent", 28, 1, 29, 1))
sketch8.addConstraint(Sketcher.Constraint("Tangent", 29, 2, 30, 2))
sketch8.addConstraint(Sketcher.Constraint("Tangent", 30, 1, 31, 1))
sketch8.addConstraint(Sketcher.Constraint("Tangent", 31, 2, 32, 2))
sketch8.addConstraint(Sketcher.Constraint("Tangent", 32, 1, 33, 1))
sketch8.addConstraint(Sketcher.Constraint("Tangent", 33, 2, 34, 2))
sketch8.addConstraint(Sketcher.Constraint("Tangent", 34, 1, 35, 1))
sketch8.addConstraint(Sketcher.Constraint("Tangent", 35, 2, 36, 2))
sketch8.addConstraint(Sketcher.Constraint("Tangent", 36, 1, 37, 1))
sketch8.addConstraint(Sketcher.Constraint("Coincident", 37, 2, 38, 1))
sketch8.addConstraint(Sketcher.Constraint("Tangent", 38, 2, 39, 1))
sketch8.addConstraint(Sketcher.Constraint("Tangent", 39, 2, 40, 1))
sketch8.addConstraint(Sketcher.Constraint("Tangent", 40, 2, 41, 1))
sketch8.addConstraint(Sketcher.Constraint("Tangent", 41, 2, 42, 1))
sketch8.addConstraint(Sketcher.Constraint("Tangent", 42, 2, 43, 1))
sketch8.addConstraint(Sketcher.Constraint("Tangent", 43, 2, 22, 1))
sketch8.addConstraint(Sketcher.Constraint("Tangent", 44, 2, 45, 1))
sketch8.addConstraint(Sketcher.Constraint("Tangent", 45, 2, 46, 1))
sketch8.addConstraint(Sketcher.Constraint("Coincident", 46, 2, 47, 1))
sketch8.addConstraint(Sketcher.Constraint("Tangent", 47, 2, 48, 2))
sketch8.addConstraint(Sketcher.Constraint("Tangent", 48, 1, 49, 1))
sketch8.addConstraint(Sketcher.Constraint("Tangent", 49, 2, 50, 2))
sketch8.addConstraint(Sketcher.Constraint("Tangent", 50, 1, 51, 1))
sketch8.addConstraint(Sketcher.Constraint("Tangent", 51, 2, 52, 2))
sketch8.addConstraint(Sketcher.Constraint("Tangent", 52, 1, 53, 1))
sketch8.addConstraint(Sketcher.Constraint("Tangent", 53, 2, 54, 2))
sketch8.addConstraint(Sketcher.Constraint("Tangent", 54, 1, 55, 1))
sketch8.addConstraint(Sketcher.Constraint("Tangent", 55, 2, 56, 2))
sketch8.addConstraint(Sketcher.Constraint("Tangent", 56, 1, 57, 1))
sketch8.addConstraint(Sketcher.Constraint("Tangent", 57, 2, 58, 2))
sketch8.addConstraint(Sketcher.Constraint("Tangent", 58, 1, 59, 1))
sketch8.addConstraint(Sketcher.Constraint("Coincident", 59, 2, 60, 1))
sketch8.addConstraint(Sketcher.Constraint("Tangent", 60, 2, 61, 1))
sketch8.addConstraint(Sketcher.Constraint("Tangent", 61, 2, 62, 1))
sketch8.addConstraint(Sketcher.Constraint("Tangent", 62, 2, 63, 1))
sketch8.addConstraint(Sketcher.Constraint("Tangent", 63, 2, 64, 1))
sketch8.addConstraint(Sketcher.Constraint("Tangent", 64, 2, 65, 1))
sketch8.addConstraint(Sketcher.Constraint("Tangent", 65, 2, 44, 1))
sketch8.addConstraint(Sketcher.Constraint("Tangent", 66, 2, 67, 2))
sketch8.addConstraint(Sketcher.Constraint("Tangent", 67, 1, 68, 1))
sketch8.addConstraint(Sketcher.Constraint("Coincident", 68, 2, 69, 1))
sketch8.addConstraint(Sketcher.Constraint("Tangent", 69, 2, 70, 1))
sketch8.addConstraint(Sketcher.Constraint("Tangent", 70, 2, 71, 1))
sketch8.addConstraint(Sketcher.Constraint("Tangent", 71, 2, 72, 1))
sketch8.addConstraint(Sketcher.Constraint("Tangent", 72, 2, 73, 1))
sketch8.addConstraint(Sketcher.Constraint("Tangent", 73, 2, 74, 1))
sketch8.addConstraint(Sketcher.Constraint("Tangent", 74, 2, 75, 1))
sketch8.addConstraint(Sketcher.Constraint("Tangent", 75, 2, 76, 1))
sketch8.addConstraint(Sketcher.Constraint("Tangent", 76, 2, 77, 1))
sketch8.addConstraint(Sketcher.Constraint("Coincident", 77, 2, 78, 1))
sketch8.addConstraint(Sketcher.Constraint("Tangent", 78, 2, 79, 2))
sketch8.addConstraint(Sketcher.Constraint("Tangent", 79, 1, 80, 1))
sketch8.addConstraint(Sketcher.Constraint("Tangent", 80, 2, 81, 2))
sketch8.addConstraint(Sketcher.Constraint("Tangent", 81, 1, 82, 1))
sketch8.addConstraint(Sketcher.Constraint("Tangent", 82, 2, 83, 2))
sketch8.addConstraint(Sketcher.Constraint("Tangent", 83, 1, 84, 1))
sketch8.addConstraint(Sketcher.Constraint("Tangent", 84, 2, 85, 2))
sketch8.addConstraint(Sketcher.Constraint("Tangent", 85, 1, 86, 1))
sketch8.addConstraint(Sketcher.Constraint("Tangent", 86, 2, 87, 2))
sketch8.addConstraint(Sketcher.Constraint("Tangent", 87, 1, 66, 1))
sketch8.addConstraint(Sketcher.Constraint("Horizontal", 0))
sketch8.addConstraint(Sketcher.Constraint("Vertical", 2))
sketch8.addConstraint(Sketcher.Constraint("Horizontal", 3))
sketch8.addConstraint(Sketcher.Constraint("Vertical", 5))
sketch8.addConstraint(Sketcher.Constraint("Horizontal", 7))
sketch8.addConstraint(Sketcher.Constraint("Vertical", 9))
sketch8.addConstraint(Sketcher.Constraint("Horizontal", 11))
sketch8.addConstraint(Sketcher.Constraint("Vertical", 12))
sketch8.addConstraint(Sketcher.Constraint("Horizontal", 14))
sketch8.addConstraint(Sketcher.Constraint("Vertical", 16))
sketch8.addConstraint(Sketcher.Constraint("Horizontal", 18))
sketch8.addConstraint(Sketcher.Constraint("Vertical", 20))
sketch8.addConstraint(Sketcher.Constraint("Vertical", 22))
sketch8.addConstraint(Sketcher.Constraint("Horizontal", 24))
sketch8.addConstraint(Sketcher.Constraint("Vertical", 25))
sketch8.addConstraint(Sketcher.Constraint("Horizontal", 27))
sketch8.addConstraint(Sketcher.Constraint("Vertical", 29))
sketch8.addConstraint(Sketcher.Constraint("Horizontal", 31))
sketch8.addConstraint(Sketcher.Constraint("Vertical", 33))
sketch8.addConstraint(Sketcher.Constraint("Horizontal", 35))
sketch8.addConstraint(Sketcher.Constraint("Vertical", 37))
sketch8.addConstraint(Sketcher.Constraint("Horizontal", 38))
sketch8.addConstraint(Sketcher.Constraint("Vertical", 40))
sketch8.addConstraint(Sketcher.Constraint("Horizontal", 42))
sketch8.addConstraint(Sketcher.Constraint("Vertical", 44))
sketch8.addConstraint(Sketcher.Constraint("Horizontal", 46))
sketch8.addConstraint(Sketcher.Constraint("Vertical", 47))
sketch8.addConstraint(Sketcher.Constraint("Horizontal", 49))
sketch8.addConstraint(Sketcher.Constraint("Vertical", 51))
sketch8.addConstraint(Sketcher.Constraint("Horizontal", 53))
sketch8.addConstraint(Sketcher.Constraint("Vertical", 55))
sketch8.addConstraint(Sketcher.Constraint("Horizontal", 57))
sketch8.addConstraint(Sketcher.Constraint("Vertical", 59))
sketch8.addConstraint(Sketcher.Constraint("Horizontal", 60))
sketch8.addConstraint(Sketcher.Constraint("Vertical", 62))
sketch8.addConstraint(Sketcher.Constraint("Horizontal", 64))
sketch8.addConstraint(Sketcher.Constraint("Horizontal", 66))
sketch8.addConstraint(Sketcher.Constraint("Vertical", 68))
sketch8.addConstraint(Sketcher.Constraint("Horizontal", 69))
sketch8.addConstraint(Sketcher.Constraint("Vertical", 71))
sketch8.addConstraint(Sketcher.Constraint("Horizontal", 73))
sketch8.addConstraint(Sketcher.Constraint("Vertical", 75))
sketch8.addConstraint(Sketcher.Constraint("Horizontal", 77))
sketch8.addConstraint(Sketcher.Constraint("Vertical", 78))
sketch8.addConstraint(Sketcher.Constraint("Horizontal", 80))
sketch8.addConstraint(Sketcher.Constraint("Vertical", 82))
sketch8.addConstraint(Sketcher.Constraint("Horizontal", 84))
sketch8.addConstraint(Sketcher.Constraint("Vertical", 86))
sketch8.addConstraint(Sketcher.Constraint("Equal", 1, 6))
sketch8.addConstraint(Sketcher.Constraint("Equal", 6, 8))
sketch8.addConstraint(Sketcher.Constraint("Equal", 4, 10))
sketch8.addConstraint(Sketcher.Constraint("Equal", 8, 13))
sketch8.addConstraint(Sketcher.Constraint("Equal", 13, 15))
sketch8.addConstraint(Sketcher.Constraint("Equal", 15, 17))
sketch8.addConstraint(Sketcher.Constraint("Equal", 17, 19))
sketch8.addConstraint(Sketcher.Constraint("Equal", 19, 21))
sketch8.addConstraint(Sketcher.Constraint("Equal", 10, 23))
sketch8.addConstraint(Sketcher.Constraint("Equal", 21, 26))
sketch8.addConstraint(Sketcher.Constraint("Equal", 26, 28))
sketch8.addConstraint(Sketcher.Constraint("Equal", 28, 30))
sketch8.addConstraint(Sketcher.Constraint("Equal", 30, 32))
sketch8.addConstraint(Sketcher.Constraint("Equal", 32, 34))
sketch8.addConstraint(Sketcher.Constraint("Equal", 34, 36))
sketch8.addConstraint(Sketcher.Constraint("Equal", 23, 39))
sketch8.addConstraint(Sketcher.Constraint("Equal", 36, 41))
sketch8.addConstraint(Sketcher.Constraint("Equal", 41, 43))
sketch8.addConstraint(Sketcher.Constraint("Equal", 39, 45))
sketch8.addConstraint(Sketcher.Constraint("Equal", 43, 48))
sketch8.addConstraint(Sketcher.Constraint("Equal", 48, 50))
sketch8.addConstraint(Sketcher.Constraint("Equal", 50, 52))
sketch8.addConstraint(Sketcher.Constraint("Equal", 52, 54))
sketch8.addConstraint(Sketcher.Constraint("Equal", 54, 56))
sketch8.addConstraint(Sketcher.Constraint("Equal", 56, 58))
sketch8.addConstraint(Sketcher.Constraint("Equal", 45, 61))
sketch8.addConstraint(Sketcher.Constraint("Equal", 58, 63))
sketch8.addConstraint(Sketcher.Constraint("Equal", 63, 65))
sketch8.addConstraint(Sketcher.Constraint("Equal", 65, 67))
sketch8.addConstraint(Sketcher.Constraint("Equal", 61, 70))
sketch8.addConstraint(Sketcher.Constraint("Equal", 67, 72))
sketch8.addConstraint(Sketcher.Constraint("Equal", 72, 74))
sketch8.addConstraint(Sketcher.Constraint("Equal", 70, 76))
sketch8.addConstraint(Sketcher.Constraint("Equal", 74, 79))
sketch8.addConstraint(Sketcher.Constraint("Equal", 79, 81))
sketch8.addConstraint(Sketcher.Constraint("Equal", 81, 83))
sketch8.addConstraint(Sketcher.Constraint("Equal", 83, 85))
sketch8.addConstraint(Sketcher.Constraint("Equal", 85, 87))
sketch8.addConstraint(Sketcher.Constraint("Symmetric", 4, 3, 23, 3, -2))
sketch8.addConstraint(Sketcher.Constraint("Symmetric", 1, 3, 26, 3, -2))
sketch8.addConstraint(Sketcher.Constraint("Symmetric", 19, 3, 30, 3, -2))
sketch8.addConstraint(Sketcher.Constraint("Symmetric", 15, 3, 34, 3, -2))
sketch8.addConstraint(Sketcher.Constraint("Symmetric", 10, 3, 39, 3, -2))
sketch8.addConstraint(Sketcher.Constraint("Symmetric", 48, 3, 67, 3, -2))
sketch8.addConstraint(Sketcher.Constraint("Symmetric", 45, 3, 70, 3, -2))
sketch8.addConstraint(Sketcher.Constraint("Symmetric", 63, 3, 74, 3, -2))
sketch8.addConstraint(Sketcher.Constraint("Symmetric", 58, 3, 79, 3, -2))
sketch8.addConstraint(Sketcher.Constraint("Symmetric", 54, 3, 83, 3, -2))
sketch8.addConstraint(Sketcher.Constraint("Horizontal", 4, 3, 10, 3))
sketch8.addConstraint(Sketcher.Constraint("Horizontal", 1, 3, 13, 3))
sketch8.addConstraint(Sketcher.Constraint("Horizontal", 8, 3, 41, 3))
sketch8.addConstraint(Sketcher.Constraint("Horizontal", 50, 3, 56, 3))
sketch8.addConstraint(Sketcher.Constraint("Horizontal", 45, 3, 61, 3))
sketch8.addConstraint(Sketcher.Constraint("Horizontal", 70, 3, 76, 3))
sketch8.addConstraint(Sketcher.Constraint("Vertical", 4, 3, 45, 3))
sketch8.addConstraint(Sketcher.Constraint("Vertical", 1, 3, 48, 3))
sketch8.addConstraint(Sketcher.Constraint("Vertical", 21, 3, 50, 3))
sketch8.addConstraint(Sketcher.Constraint("Vertical", 17, 3, 54, 3))
sketch8.addConstraint(Sketcher.Constraint("Vertical", 13, 3, 58, 3))
sketch8.addConstraint(Sketcher.Constraint("Vertical", 10, 3, 61, 3))
sketch8.addConstraint(Sketcher.Constraint("Vertical", 36, 3, 79, 3))
sketch8.addConstraint(Sketcher.Constraint("Vertical", 30, 3, 85, 3))
sketch8.addConstraint(Sketcher.Constraint("Vertical", 65, 3, 1, 1))
sketch8.addConstraint(Sketcher.Constraint("Vertical", 58, 3, 8, 2))
sketch8.addConstraint(Sketcher.Constraint("Equal", 0, 14))
sketch8.addConstraint(Sketcher.Constraint("Equal", 40, 44))
sketch8.addConstraint(Sketcher.Constraint("Equal", 37, 47))
sketch8.addConstraint(Sketcher.Constraint("Equal", 33, 51))
sketch8.addConstraint(Sketcher.Constraint("Radius", 1, 1.0))
sketch8.addConstraint(Sketcher.Constraint("DistanceX", 0, 2, 0, 1, 2.0))
sketch8.addConstraint(Sketcher.Constraint("DistanceX", 7, 2, 7, 1, 7.0))
sketch8.addConstraint(Sketcher.Constraint("DistanceY", 2, 1, 2, 2, 3.0))
sketch8.addConstraint(Sketcher.Constraint("DistanceY", 16, 1, 16, 2, 9.0))
sketch8.addConstraint(Sketcher.Constraint("Radius", 4, 0.25))
sketch8.addConstraint(Sketcher.Constraint("DistanceY", 5, 1, 5, 2, 1.75))
sketch8.addConstraint(Sketcher.Constraint("DistanceX", 1, 3, -1, 1, 15.5))
sketch8.addConstraint(Sketcher.Constraint("DistanceY", -1, 1, 1, 3, 10.5))
sketch8.addConstraint(Sketcher.Constraint("DistanceY", 48, 3, -1, 1, 61.5))
pocket7 = body.newObject("PartDesign::Pocket", "Pocket006")
pocket7.Profile = sketch8
pocket7.Type = "ThroughAll"
pocket7.Reversed = True

# Sketch on XZ plane
sketch9 = body.newObject("Sketcher::SketchObject", "Sketch008")
sketch9.AttachmentSupport = (doc.getObject("XZ_Plane"), [""])
sketch9.MapMode = "FlatFace"
sketch9.addGeometry(Part.Circle(V(-29, 64.5, 0), V(0, 0, 1), 1.5), False)
sketch9.addGeometry(Part.Circle(V(-29, 41.5, 0), V(0, 0, 1), 1.5), False)
sketch9.addGeometry(Part.Circle(V(29, 64.5, 0), V(0, 0, 1), 1.5), False)
sketch9.addGeometry(Part.Circle(V(29, 41.5, 0), V(0, 0, 1), 1.5), False)
sketch9.addConstraint(Sketcher.Constraint("Equal", 0, 1))
sketch9.addConstraint(Sketcher.Constraint("Equal", 1, 2))
sketch9.addConstraint(Sketcher.Constraint("Equal", 2, 3))
sketch9.addConstraint(Sketcher.Constraint("Symmetric", 0, 3, 2, 3, -2))
sketch9.addConstraint(Sketcher.Constraint("Symmetric", 1, 3, 3, 3, -2))
sketch9.addConstraint(Sketcher.Constraint("Vertical", 0, 3, 1, 3))
sketch9.addConstraint(Sketcher.Constraint("Diameter", 0, 3.0))
sketch9.addConstraint(Sketcher.Constraint("DistanceX", 0, 3, -1, 1, 29.0))
sketch9.addConstraint(Sketcher.Constraint("DistanceY", 1, 3, 0, 3, 23.0))
sketch9.addConstraint(Sketcher.Constraint("DistanceY", -1, 1, 0, 3, 64.5))
pocket8 = body.newObject("PartDesign::Pocket", "Pocket007")
pocket8.Profile = sketch9
pocket8.Type = "ThroughAll"
pocket8.Reversed = True

# Sketch on XZ plane
sketch10 = body.newObject("Sketcher::SketchObject", "Sketch009")
sketch10.AttachmentSupport = (doc.getObject("XZ_Plane"), [""])
sketch10.MapMode = "FlatFace"
sketch10.addGeometry(Part.Circle(V(-15.2, 23.5, 0), V(0, 0, 1), 1.5), False)
sketch10.addGeometry(Part.Circle(V(15.2, 39.5, 0), V(0, 0, 1), 1.5), False)
sketch10.addGeometry(Part.Circle(V(-15.2, 39.5, 0), V(0, 0, 1), 1.5), False)
sketch10.addGeometry(Part.Circle(V(15.2, 23.5, 0), V(0, 0, 1), 1.5), False)
sketch10.addConstraint(Sketcher.Constraint("Equal", 0, 1))
sketch10.addConstraint(Sketcher.Constraint("Equal", 1, 2))
sketch10.addConstraint(Sketcher.Constraint("Equal", 2, 3))
sketch10.addConstraint(Sketcher.Constraint("Symmetric", 1, 3, 2, 3, -2))
sketch10.addConstraint(Sketcher.Constraint("Symmetric", 0, 3, 3, 3, -2))
sketch10.addConstraint(Sketcher.Constraint("Vertical", 0, 3, 2, 3))
sketch10.addConstraint(Sketcher.Constraint("Diameter", 0, 3.0))
sketch10.addConstraint(Sketcher.Constraint("DistanceY", 0, 3, 1, 3, 16.0))
sketch10.addConstraint(Sketcher.Constraint("DistanceY", -1, 1, 0, 3, 23.5))
sketch10.addConstraint(Sketcher.Constraint("DistanceX", 0, 3, 1, 3, 30.5))
pocket9 = body.newObject("PartDesign::Pocket", "Pocket008")
pocket9.Profile = sketch10
pocket9.Type = "ThroughAll"
pocket9.Reversed = True

# Sketch on XZ plane
sketch11 = body.newObject("Sketcher::SketchObject", "Sketch010")
sketch11.AttachmentSupport = (doc.getObject("XZ_Plane"), [""])
sketch11.MapMode = "FlatFace"
sketch11.addGeometry(Part.Circle(V(-10.4, 29.1, 0), V(0, 0, 1), 1.5), False)
sketch11.addGeometry(Part.Circle(V(10.4, 29.1, 0), V(0, 0, 1), 1.5), False)
sketch11.addConstraint(Sketcher.Constraint("Equal", 0, 1))
sketch11.addConstraint(Sketcher.Constraint("Symmetric", 0, 3, 1, 3, -2))
sketch11.addConstraint(Sketcher.Constraint("Diameter", 0, 3.0))
sketch11.addConstraint(Sketcher.Constraint("DistanceY", -1, 1, 0, 3, 29.12))
sketch11.addConstraint(Sketcher.Constraint("DistanceX", 0, 3, -1, 1, 10.44998))
pocket10 = body.newObject("PartDesign::Pocket", "Pocket009")
pocket10.Profile = sketch11
pocket10.Type = "ThroughAll"
pocket10.Reversed = True

doc.recompute()
